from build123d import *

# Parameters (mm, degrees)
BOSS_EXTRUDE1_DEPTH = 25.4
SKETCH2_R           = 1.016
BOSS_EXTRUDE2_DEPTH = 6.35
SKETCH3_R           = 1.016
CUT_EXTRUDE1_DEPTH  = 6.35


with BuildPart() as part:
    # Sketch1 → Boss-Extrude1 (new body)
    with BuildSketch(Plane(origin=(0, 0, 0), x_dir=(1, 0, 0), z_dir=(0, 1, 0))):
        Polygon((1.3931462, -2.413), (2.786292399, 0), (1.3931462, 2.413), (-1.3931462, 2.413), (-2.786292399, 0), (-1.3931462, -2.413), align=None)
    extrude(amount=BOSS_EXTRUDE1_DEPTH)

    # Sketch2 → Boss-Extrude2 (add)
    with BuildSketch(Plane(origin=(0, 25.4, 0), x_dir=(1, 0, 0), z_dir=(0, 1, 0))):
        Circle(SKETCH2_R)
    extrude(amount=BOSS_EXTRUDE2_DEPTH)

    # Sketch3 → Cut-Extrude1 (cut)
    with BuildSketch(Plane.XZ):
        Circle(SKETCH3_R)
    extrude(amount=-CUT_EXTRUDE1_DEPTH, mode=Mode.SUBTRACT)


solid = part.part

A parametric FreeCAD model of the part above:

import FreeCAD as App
import Part
import Sketcher
from FreeCAD import Vector
Q = App.Units.Quantity

doc = App.newDocument("Part")
body = doc.addObject("PartDesign::Body", "Body")

# Sketch on XZ plane
sketch1 = body.newObject("Sketcher::SketchObject", "Sketch")
sketch1.AttachmentSupport = (doc.getObject("XZ_Plane"), [""])
sketch1.MapMode = "FlatFace"
sketch1.addGeometry(Part.LineSegment(Vector(1.4, 2.4, 0), Vector(2.8, 0, 0)), False)
sketch1.addGeometry(Part.LineSegment(Vector(2.8, 0, 0), Vector(1.4, -2.4, 0)), False)
sketch1.addGeometry(Part.LineSegment(Vector(1.4, -2.4, 0), Vector(-1.4, -2.4, 0)), False)
sketch1.addGeometry(Part.LineSegment(Vector(-1.4, -2.4, 0), Vector(-2.8, 0, 0)), False)
sketch1.addGeometry(Part.LineSegment(Vector(-2.8, 0, 0), Vector(-1.4, 2.4, 0)), False)
sketch1.addGeometry(Part.LineSegment(Vector(-1.4, 2.4, 0), Vector(1.4, 2.4, 0)), False)
sketch1.addConstraint(Sketcher.Constraint("Coincident", 0, 2, 1, 1))
sketch1.addConstraint(Sketcher.Constraint("Coincident", 1, 2, 2, 1))
sketch1.addConstraint(Sketcher.Constraint("Coincident", 2, 2, 3, 1))
sketch1.addConstraint(Sketcher.Constraint("Coincident", 3, 2, 4, 1))
sketch1.addConstraint(Sketcher.Constraint("Coincident", 4, 2, 5, 1))
sketch1.addConstraint(Sketcher.Constraint("Coincident", 5, 2, 0, 1))
sketch1.addConstraint(Sketcher.Constraint("Horizontal", 2))
sketch1.addConstraint(Sketcher.Constraint("Horizontal", 5))
sketch1.addConstraint(Sketcher.Constraint("Symmetric", 0, 2, 3, 2, -1, 1))
sketch1.addConstraint(Sketcher.Constraint("Symmetric", 1, 2, 4, 2, -1, 1))
sketch1.addConstraint(Sketcher.Constraint("PointOnObject", 0, 2, -1))
sketch1.addConstraint(Sketcher.Constraint("Parallel", 0, 3))
sketch1.addConstraint(Sketcher.Constraint("Vertical", 2, 2, 4, 2))
sketch1.addConstraint(Sketcher.Constraint("Angle", 0, Q("-60 deg")))
sketch1.addConstraint(Sketcher.Constraint("DistanceY", 2, 2, 4, 2, Q("0.19 in")))
sketch1.addConstraint(Sketcher.Constraint("DistanceX", 2, 2, 2, 1, Q("2.786292 mm")))
pad1 = body.newObject("PartDesign::Pad", "Pad")
pad1.Profile = sketch1
pad1.Length = Q("1 in")
pad1.Reversed = True

# Sketch on XZ plane
sketch2 = body.newObject("Sketcher::SketchObject", "Sketch001")
sketch2.AttachmentSupport = (doc.getObject("XZ_Plane"), [""])
sketch2.MapMode = "FlatFace"
sketch2.AttachmentOffset = App.Placement(Vector(0, 0, -1 * 25.4), App.Rotation())
sketch2.addGeometry(Part.Circle(Vector(0, 0, 0), Vector(0, 0, 1), 1), False)
sketch2.addConstraint(Sketcher.Constraint("Coincident", 0, 3, -1, 1))
sketch2.addConstraint(Sketcher.Constraint("Diameter", 0, Q("0.08 in")))
pad2 = body.newObject("PartDesign::Pad", "Pad001")
pad2.Profile = sketch2
pad2.Length = Q("0.25 in")
pad2.Reversed = True

# Sketch on XZ plane
sketch3 = body.newObject("Sketcher::SketchObject", "Sketch002")
sketch3.AttachmentSupport = (doc.getObject("XZ_Plane"), [""])
sketch3.MapMode = "FlatFace"
sketch3.addGeometry(Part.Circle(Vector(0, 0, 0), Vector(0, 0, 1), 1), False)
sketch3.addConstraint(Sketcher.Constraint("Coincident", 0, 3, -1, 1))
sketch3.addConstraint(Sketcher.Constraint("Diameter", 0, Q("0.08 in")))
pocket1 = body.newObject("PartDesign::Pocket", "Pocket")
pocket1.Profile = sketch3
pocket1.Length = Q("0.25 in")

doc.recompute()
